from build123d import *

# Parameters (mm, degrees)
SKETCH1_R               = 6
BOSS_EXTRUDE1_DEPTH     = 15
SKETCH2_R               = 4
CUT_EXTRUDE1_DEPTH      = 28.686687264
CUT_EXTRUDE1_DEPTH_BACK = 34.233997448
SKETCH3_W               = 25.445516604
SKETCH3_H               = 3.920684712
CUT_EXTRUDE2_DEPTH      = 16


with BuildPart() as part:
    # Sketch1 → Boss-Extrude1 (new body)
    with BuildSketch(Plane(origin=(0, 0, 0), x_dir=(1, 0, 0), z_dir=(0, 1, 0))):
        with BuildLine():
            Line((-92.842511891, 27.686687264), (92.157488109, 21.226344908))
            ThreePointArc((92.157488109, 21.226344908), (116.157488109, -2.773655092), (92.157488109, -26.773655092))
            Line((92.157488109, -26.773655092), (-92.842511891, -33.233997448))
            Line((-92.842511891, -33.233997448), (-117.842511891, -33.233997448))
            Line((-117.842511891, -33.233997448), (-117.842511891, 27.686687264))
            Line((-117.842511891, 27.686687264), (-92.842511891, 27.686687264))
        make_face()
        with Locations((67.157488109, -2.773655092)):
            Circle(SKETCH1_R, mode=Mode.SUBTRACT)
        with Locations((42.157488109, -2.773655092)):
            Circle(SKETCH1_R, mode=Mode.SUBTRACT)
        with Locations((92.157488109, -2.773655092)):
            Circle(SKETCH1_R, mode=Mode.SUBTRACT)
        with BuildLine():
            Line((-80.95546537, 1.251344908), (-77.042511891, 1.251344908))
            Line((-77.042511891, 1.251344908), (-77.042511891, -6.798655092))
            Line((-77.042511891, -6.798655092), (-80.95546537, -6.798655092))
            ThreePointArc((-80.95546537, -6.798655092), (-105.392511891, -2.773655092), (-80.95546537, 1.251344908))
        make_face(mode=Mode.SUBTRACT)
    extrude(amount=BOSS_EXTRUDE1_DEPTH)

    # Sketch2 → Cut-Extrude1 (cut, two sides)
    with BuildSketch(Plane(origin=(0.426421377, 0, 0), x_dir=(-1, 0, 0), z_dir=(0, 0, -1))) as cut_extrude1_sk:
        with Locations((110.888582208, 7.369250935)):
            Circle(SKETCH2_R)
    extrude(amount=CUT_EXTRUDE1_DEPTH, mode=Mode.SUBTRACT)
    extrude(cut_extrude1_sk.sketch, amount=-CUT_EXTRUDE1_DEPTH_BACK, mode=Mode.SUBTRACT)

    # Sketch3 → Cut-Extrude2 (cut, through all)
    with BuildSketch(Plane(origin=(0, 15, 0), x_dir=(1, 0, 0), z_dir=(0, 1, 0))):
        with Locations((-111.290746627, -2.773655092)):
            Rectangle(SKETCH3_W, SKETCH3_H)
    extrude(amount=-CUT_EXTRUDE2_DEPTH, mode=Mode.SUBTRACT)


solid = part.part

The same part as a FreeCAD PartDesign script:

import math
import FreeCAD as App
import Part
import Sketcher
from FreeCAD import Vector
Q = App.Units.Quantity

doc = App.newDocument("Part")
params = doc.addObject("Spreadsheet::Sheet", "Params")
for row, (alias, value) in enumerate([
    ("sketch1_diameter", "12 mm"),
    ("sketch1_radius", "24 mm"),
    ("sketch1_width", "25 mm"),
    ("sketch1_radius2", "12.55 mm"),
    ("sketch1_height", "8.05 mm"),
    ("pad1_length", "15 mm"),
    ("sketch2_diameter", "8 mm"),
], start=1):
    params.set(f"A{row}", alias)
    params.set(f"B{row}", "=" + value)
    params.setAlias(f"B{row}", alias)

body = doc.addObject("PartDesign::Body", "Body")

# Sketch on XZ plane
sketch1 = doc.addObject("Sketcher::SketchObject", "Sketch")
body.addObject(sketch1)
sketch1.AttachmentSupport = (doc.XZ_Plane, [""])
sketch1.MapMode = "FlatFace"
sketch1.addGeometry(Part.LineSegment(Vector(92.157488, -21.226345, 0), Vector(-92.842512, -27.686687, 0)), False)
sketch1.addGeometry(Part.LineSegment(Vector(-92.842512, -27.686687, 0), Vector(-117.842512, -27.686687, 0)), False)
sketch1.addGeometry(Part.LineSegment(Vector(-117.842512, -27.686687, 0), Vector(-117.842512, 33.233997, 0)), False)
sketch1.addGeometry(Part.LineSegment(Vector(-117.842512, 33.233997, 0), Vector(-92.842512, 33.233997, 0)), False)
sketch1.addGeometry(Part.LineSegment(Vector(-92.842512, 33.233997, 0), Vector(92.157488, 26.773655, 0)), False)
sketch1.addGeometry(Part.ArcOfCircle(Part.Circle(Vector(92.157488, 2.773655, 0), Vector(0, 0, 1), 24), math.radians(-90), math.radians(90)), False)
sketch1.addGeometry(Part.Circle(Vector(92.157488, 2.773655, 0), Vector(0, 0, 1), 6), False)
sketch1.addGeometry(Part.Circle(Vector(67.157488, 2.773655, 0), Vector(0, 0, 1), 6), False)
sketch1.addGeometry(Part.Circle(Vector(42.157488, 2.773655, 0), Vector(0, 0, 1), 6), False)
sketch1.addGeometry(Part.LineSegment(Vector(-80.955465, -1.251345, 0), Vector(-77.042512, -1.251345, 0)), False)
sketch1.addGeometry(Part.LineSegment(Vector(-77.042512, -1.251345, 0), Vector(-77.042512, 6.798655, 0)), False)
sketch1.addGeometry(Part.LineSegment(Vector(-77.042512, 6.798655, 0), Vector(-80.955465, 6.798655, 0)), False)
sketch1.addGeometry(Part.ArcOfCircle(Part.Circle(Vector(-92.842512, 2.773655, 0), Vector(0, 0, 1), 12.55), math.radians(18.706299), math.radians(341.293701)), False)
sketch1.addConstraint(Sketcher.Constraint("Coincident", 0, 2, 1, 1))
sketch1.addConstraint(Sketcher.Constraint("Coincident", 1, 2, 2, 1))
sketch1.addConstraint(Sketcher.Constraint("Coincident", 2, 2, 3, 1))
sketch1.addConstraint(Sketcher.Constraint("Coincident", 3, 2, 4, 1))
sketch1.addConstraint(Sketcher.Constraint("Coincident", 4, 2, 5, 2))
sketch1.addConstraint(Sketcher.Constraint("Coincident", 5, 1, 0, 1))
sketch1.addConstraint(Sketcher.Constraint("Coincident", 9, 2, 10, 1))
sketch1.addConstraint(Sketcher.Constraint("Coincident", 10, 2, 11, 1))
sketch1.addConstraint(Sketcher.Constraint("Coincident", 11, 2, 12, 1))
sketch1.addConstraint(Sketcher.Constraint("Coincident", 12, 2, 9, 1))
sketch1.addConstraint(Sketcher.Constraint("Horizontal", 1))
sketch1.addConstraint(Sketcher.Constraint("Vertical", 2))
sketch1.addConstraint(Sketcher.Constraint("Horizontal", 3))
sketch1.addConstraint(Sketcher.Constraint("Horizontal", 9))
sketch1.addConstraint(Sketcher.Constraint("Vertical", 10))
sketch1.addConstraint(Sketcher.Constraint("Horizontal", 11))
sketch1.addConstraint(Sketcher.Constraint("Coincident", 6, 3, 5, 3))
sketch1.addConstraint(Sketcher.Constraint("Equal", 6, 7))
sketch1.addConstraint(Sketcher.Constraint("Equal", 7, 8))
sketch1.addConstraint(Sketcher.Constraint("Horizontal", 6, 3, 7, 3))
sketch1.addConstraint(Sketcher.Constraint("Horizontal", 7, 3, 8, 3))
sketch1.addConstraint(Sketcher.Constraint("Horizontal", 8, 3, 12, 3))
sketch1.addConstraint(Sketcher.Constraint("Vertical", 12, 3, 0, 2))
sketch1.addConstraint(Sketcher.Constraint("Vertical", 0, 2, 3, 2))
sketch1.addConstraint(Sketcher.Constraint("Vertical", 6, 3, 4, 2))
sketch1.addConstraint(Sketcher.Constraint("Vertical", 4, 2, 5, 1))
sketch1.addConstraint(Sketcher.Constraint("Vertical", 11, 2, 12, 2))
sketch1.addConstraint(Sketcher.Constraint("Equal", 0, 4))
sketch1.addConstraint(Sketcher.Constraint("Diameter", 6, Q("12 mm")))
sketch1.addConstraint(Sketcher.Constraint("Radius", 5, Q("24 mm")))
sketch1.addConstraint(Sketcher.Constraint("DistanceX", 1, 2, 1, 1, Q("25 mm")))
sketch1.addConstraint(Sketcher.Constraint("Angle", 0, Q("-178 deg")))
sketch1.addConstraint(Sketcher.Constraint("Radius", 12, Q("12.55 mm")))
sketch1.addConstraint(Sketcher.Constraint("DistanceX", 7, 3, 5, 3, Q("25 mm")))
sketch1.addConstraint(Sketcher.Constraint("DistanceX", 8, 3, 7, 3, Q("25 mm")))
sketch1.addConstraint(Sketcher.Constraint("DistanceX", 12, 3, 8, 3, Q("135 mm")))
sketch1.addConstraint(Sketcher.Constraint("DistanceY", 10, 1, 10, 2, Q("8.05 mm")))
sketch1.addConstraint(Sketcher.Constraint("DistanceX", 12, 3, 9, 2, Q("15.8 mm")))
sketch1.addConstraint(Sketcher.Constraint("DistanceX", -1, 1, 5, 3, Q("92.157488 mm")))
sketch1.addConstraint(Sketcher.Constraint("DistanceY", -1, 1, 5, 3, Q("2.773655 mm")))
sketch1.setExpression("Constraints[28]", "Params.sketch1_diameter")
sketch1.setExpression("Constraints[29]", "Params.sketch1_radius")
sketch1.setExpression("Constraints[30]", "Params.sketch1_width")
sketch1.setExpression("Constraints[32]", "Params.sketch1_radius2")
sketch1.setExpression("Constraints[36]", "Params.sketch1_height")
pad1 = doc.addObject("PartDesign::Pad", "Pad")
body.addObject(pad1)
pad1.Profile = sketch1
pad1.setExpression("Length", "Params.pad1_length")
pad1.Reversed = True

# Sketch on XY plane
sketch2 = doc.addObject("Sketcher::SketchObject", "Sketch001")
body.addObject(sketch2)
sketch2.AttachmentSupport = (doc.XY_Plane, [""])
sketch2.MapMode = "FlatFace"
sketch2.addGeometry(Part.Circle(Vector(-110.462161, 7.369251, 0), Vector(0, 0, 1), 4), False)
sketch2.addConstraint(Sketcher.Constraint("Diameter", 0, Q("8 mm")))
sketch2.addConstraint(Sketcher.Constraint("DistanceX", 0, 3, -1, 1, Q("110.462161 mm")))
sketch2.addConstraint(Sketcher.Constraint("DistanceY", -1, 1, 0, 3, Q("7.369251 mm")))
sketch2.setExpression("Constraints[0]", "Params.sketch2_diameter")
pocket1 = doc.addObject("PartDesign::Pocket", "Pocket")
body.addObject(pocket1)
pocket1.Profile = sketch2
pocket1.Type = "ThroughAll"
pocket1.Midplane = True

# Sketch on XZ plane
sketch3 = doc.addObject("Sketcher::SketchObject", "Sketch002")
body.addObject(sketch3)
sketch3.AttachmentSupport = (doc.XZ_Plane, [""])
sketch3.MapMode = "FlatFace"
sketch3.AttachmentOffset = App.Placement(Vector(0, 0, -15), App.Rotation())
sketch3.addGeometry(Part.LineSegment(Vector(-124.013505, 0.813313, 0), Vector(-124.013505, 4.733997, 0)), False)
sketch3.addGeometry(Part.LineSegment(Vector(-124.013505, 4.733997, 0), Vector(-98.567988, 4.733997, 0)), False)
sketch3.addGeometry(Part.LineSegment(Vector(-98.567988, 4.733997, 0), Vector(-98.567988, 0.813313, 0)), False)
sketch3.addGeometry(Part.LineSegment(Vector(-98.567988, 0.813313, 0), Vector(-124.013505, 0.813313, 0)), False)
sketch3.addConstraint(Sketcher.Constraint("Coincident", 0, 2, 1, 1))
sketch3.addConstraint(Sketcher.Constraint("Coincident", 1, 2, 2, 1))
sketch3.addConstraint(Sketcher.Constraint("Coincident", 2, 2, 3, 1))
sketch3.addConstraint(Sketcher.Constraint("Coincident", 3, 2, 0, 1))
sketch3.addConstraint(Sketcher.Constraint("Vertical", 0))
sketch3.addConstraint(Sketcher.Constraint("Horizontal", 1))
sketch3.addConstraint(Sketcher.Constraint("Vertical", 2))
sketch3.addConstraint(Sketcher.Constraint("Horizontal", 3))
sketch3.addConstraint(Sketcher.Constraint("DistanceX", 1, 1, 1, 2, Q("25.445517 mm")))
sketch3.addConstraint(Sketcher.Constraint("DistanceY", 0, 1, 0, 2, Q("3.920685 mm")))
sketch3.addConstraint(Sketcher.Constraint("DistanceX", 1, 2, -1, 1, Q("98.567988 mm")))
sketch3.addConstraint(Sketcher.Constraint("DistanceY", -1, 1, 0, 2, Q("4.733997 mm")))
pocket2 = doc.addObject("PartDesign::Pocket", "Pocket001")
body.addObject(pocket2)
pocket2.Profile = sketch3
pocket2.Type = "ThroughAll"
pocket2.Reversed = True

doc.recompute()
